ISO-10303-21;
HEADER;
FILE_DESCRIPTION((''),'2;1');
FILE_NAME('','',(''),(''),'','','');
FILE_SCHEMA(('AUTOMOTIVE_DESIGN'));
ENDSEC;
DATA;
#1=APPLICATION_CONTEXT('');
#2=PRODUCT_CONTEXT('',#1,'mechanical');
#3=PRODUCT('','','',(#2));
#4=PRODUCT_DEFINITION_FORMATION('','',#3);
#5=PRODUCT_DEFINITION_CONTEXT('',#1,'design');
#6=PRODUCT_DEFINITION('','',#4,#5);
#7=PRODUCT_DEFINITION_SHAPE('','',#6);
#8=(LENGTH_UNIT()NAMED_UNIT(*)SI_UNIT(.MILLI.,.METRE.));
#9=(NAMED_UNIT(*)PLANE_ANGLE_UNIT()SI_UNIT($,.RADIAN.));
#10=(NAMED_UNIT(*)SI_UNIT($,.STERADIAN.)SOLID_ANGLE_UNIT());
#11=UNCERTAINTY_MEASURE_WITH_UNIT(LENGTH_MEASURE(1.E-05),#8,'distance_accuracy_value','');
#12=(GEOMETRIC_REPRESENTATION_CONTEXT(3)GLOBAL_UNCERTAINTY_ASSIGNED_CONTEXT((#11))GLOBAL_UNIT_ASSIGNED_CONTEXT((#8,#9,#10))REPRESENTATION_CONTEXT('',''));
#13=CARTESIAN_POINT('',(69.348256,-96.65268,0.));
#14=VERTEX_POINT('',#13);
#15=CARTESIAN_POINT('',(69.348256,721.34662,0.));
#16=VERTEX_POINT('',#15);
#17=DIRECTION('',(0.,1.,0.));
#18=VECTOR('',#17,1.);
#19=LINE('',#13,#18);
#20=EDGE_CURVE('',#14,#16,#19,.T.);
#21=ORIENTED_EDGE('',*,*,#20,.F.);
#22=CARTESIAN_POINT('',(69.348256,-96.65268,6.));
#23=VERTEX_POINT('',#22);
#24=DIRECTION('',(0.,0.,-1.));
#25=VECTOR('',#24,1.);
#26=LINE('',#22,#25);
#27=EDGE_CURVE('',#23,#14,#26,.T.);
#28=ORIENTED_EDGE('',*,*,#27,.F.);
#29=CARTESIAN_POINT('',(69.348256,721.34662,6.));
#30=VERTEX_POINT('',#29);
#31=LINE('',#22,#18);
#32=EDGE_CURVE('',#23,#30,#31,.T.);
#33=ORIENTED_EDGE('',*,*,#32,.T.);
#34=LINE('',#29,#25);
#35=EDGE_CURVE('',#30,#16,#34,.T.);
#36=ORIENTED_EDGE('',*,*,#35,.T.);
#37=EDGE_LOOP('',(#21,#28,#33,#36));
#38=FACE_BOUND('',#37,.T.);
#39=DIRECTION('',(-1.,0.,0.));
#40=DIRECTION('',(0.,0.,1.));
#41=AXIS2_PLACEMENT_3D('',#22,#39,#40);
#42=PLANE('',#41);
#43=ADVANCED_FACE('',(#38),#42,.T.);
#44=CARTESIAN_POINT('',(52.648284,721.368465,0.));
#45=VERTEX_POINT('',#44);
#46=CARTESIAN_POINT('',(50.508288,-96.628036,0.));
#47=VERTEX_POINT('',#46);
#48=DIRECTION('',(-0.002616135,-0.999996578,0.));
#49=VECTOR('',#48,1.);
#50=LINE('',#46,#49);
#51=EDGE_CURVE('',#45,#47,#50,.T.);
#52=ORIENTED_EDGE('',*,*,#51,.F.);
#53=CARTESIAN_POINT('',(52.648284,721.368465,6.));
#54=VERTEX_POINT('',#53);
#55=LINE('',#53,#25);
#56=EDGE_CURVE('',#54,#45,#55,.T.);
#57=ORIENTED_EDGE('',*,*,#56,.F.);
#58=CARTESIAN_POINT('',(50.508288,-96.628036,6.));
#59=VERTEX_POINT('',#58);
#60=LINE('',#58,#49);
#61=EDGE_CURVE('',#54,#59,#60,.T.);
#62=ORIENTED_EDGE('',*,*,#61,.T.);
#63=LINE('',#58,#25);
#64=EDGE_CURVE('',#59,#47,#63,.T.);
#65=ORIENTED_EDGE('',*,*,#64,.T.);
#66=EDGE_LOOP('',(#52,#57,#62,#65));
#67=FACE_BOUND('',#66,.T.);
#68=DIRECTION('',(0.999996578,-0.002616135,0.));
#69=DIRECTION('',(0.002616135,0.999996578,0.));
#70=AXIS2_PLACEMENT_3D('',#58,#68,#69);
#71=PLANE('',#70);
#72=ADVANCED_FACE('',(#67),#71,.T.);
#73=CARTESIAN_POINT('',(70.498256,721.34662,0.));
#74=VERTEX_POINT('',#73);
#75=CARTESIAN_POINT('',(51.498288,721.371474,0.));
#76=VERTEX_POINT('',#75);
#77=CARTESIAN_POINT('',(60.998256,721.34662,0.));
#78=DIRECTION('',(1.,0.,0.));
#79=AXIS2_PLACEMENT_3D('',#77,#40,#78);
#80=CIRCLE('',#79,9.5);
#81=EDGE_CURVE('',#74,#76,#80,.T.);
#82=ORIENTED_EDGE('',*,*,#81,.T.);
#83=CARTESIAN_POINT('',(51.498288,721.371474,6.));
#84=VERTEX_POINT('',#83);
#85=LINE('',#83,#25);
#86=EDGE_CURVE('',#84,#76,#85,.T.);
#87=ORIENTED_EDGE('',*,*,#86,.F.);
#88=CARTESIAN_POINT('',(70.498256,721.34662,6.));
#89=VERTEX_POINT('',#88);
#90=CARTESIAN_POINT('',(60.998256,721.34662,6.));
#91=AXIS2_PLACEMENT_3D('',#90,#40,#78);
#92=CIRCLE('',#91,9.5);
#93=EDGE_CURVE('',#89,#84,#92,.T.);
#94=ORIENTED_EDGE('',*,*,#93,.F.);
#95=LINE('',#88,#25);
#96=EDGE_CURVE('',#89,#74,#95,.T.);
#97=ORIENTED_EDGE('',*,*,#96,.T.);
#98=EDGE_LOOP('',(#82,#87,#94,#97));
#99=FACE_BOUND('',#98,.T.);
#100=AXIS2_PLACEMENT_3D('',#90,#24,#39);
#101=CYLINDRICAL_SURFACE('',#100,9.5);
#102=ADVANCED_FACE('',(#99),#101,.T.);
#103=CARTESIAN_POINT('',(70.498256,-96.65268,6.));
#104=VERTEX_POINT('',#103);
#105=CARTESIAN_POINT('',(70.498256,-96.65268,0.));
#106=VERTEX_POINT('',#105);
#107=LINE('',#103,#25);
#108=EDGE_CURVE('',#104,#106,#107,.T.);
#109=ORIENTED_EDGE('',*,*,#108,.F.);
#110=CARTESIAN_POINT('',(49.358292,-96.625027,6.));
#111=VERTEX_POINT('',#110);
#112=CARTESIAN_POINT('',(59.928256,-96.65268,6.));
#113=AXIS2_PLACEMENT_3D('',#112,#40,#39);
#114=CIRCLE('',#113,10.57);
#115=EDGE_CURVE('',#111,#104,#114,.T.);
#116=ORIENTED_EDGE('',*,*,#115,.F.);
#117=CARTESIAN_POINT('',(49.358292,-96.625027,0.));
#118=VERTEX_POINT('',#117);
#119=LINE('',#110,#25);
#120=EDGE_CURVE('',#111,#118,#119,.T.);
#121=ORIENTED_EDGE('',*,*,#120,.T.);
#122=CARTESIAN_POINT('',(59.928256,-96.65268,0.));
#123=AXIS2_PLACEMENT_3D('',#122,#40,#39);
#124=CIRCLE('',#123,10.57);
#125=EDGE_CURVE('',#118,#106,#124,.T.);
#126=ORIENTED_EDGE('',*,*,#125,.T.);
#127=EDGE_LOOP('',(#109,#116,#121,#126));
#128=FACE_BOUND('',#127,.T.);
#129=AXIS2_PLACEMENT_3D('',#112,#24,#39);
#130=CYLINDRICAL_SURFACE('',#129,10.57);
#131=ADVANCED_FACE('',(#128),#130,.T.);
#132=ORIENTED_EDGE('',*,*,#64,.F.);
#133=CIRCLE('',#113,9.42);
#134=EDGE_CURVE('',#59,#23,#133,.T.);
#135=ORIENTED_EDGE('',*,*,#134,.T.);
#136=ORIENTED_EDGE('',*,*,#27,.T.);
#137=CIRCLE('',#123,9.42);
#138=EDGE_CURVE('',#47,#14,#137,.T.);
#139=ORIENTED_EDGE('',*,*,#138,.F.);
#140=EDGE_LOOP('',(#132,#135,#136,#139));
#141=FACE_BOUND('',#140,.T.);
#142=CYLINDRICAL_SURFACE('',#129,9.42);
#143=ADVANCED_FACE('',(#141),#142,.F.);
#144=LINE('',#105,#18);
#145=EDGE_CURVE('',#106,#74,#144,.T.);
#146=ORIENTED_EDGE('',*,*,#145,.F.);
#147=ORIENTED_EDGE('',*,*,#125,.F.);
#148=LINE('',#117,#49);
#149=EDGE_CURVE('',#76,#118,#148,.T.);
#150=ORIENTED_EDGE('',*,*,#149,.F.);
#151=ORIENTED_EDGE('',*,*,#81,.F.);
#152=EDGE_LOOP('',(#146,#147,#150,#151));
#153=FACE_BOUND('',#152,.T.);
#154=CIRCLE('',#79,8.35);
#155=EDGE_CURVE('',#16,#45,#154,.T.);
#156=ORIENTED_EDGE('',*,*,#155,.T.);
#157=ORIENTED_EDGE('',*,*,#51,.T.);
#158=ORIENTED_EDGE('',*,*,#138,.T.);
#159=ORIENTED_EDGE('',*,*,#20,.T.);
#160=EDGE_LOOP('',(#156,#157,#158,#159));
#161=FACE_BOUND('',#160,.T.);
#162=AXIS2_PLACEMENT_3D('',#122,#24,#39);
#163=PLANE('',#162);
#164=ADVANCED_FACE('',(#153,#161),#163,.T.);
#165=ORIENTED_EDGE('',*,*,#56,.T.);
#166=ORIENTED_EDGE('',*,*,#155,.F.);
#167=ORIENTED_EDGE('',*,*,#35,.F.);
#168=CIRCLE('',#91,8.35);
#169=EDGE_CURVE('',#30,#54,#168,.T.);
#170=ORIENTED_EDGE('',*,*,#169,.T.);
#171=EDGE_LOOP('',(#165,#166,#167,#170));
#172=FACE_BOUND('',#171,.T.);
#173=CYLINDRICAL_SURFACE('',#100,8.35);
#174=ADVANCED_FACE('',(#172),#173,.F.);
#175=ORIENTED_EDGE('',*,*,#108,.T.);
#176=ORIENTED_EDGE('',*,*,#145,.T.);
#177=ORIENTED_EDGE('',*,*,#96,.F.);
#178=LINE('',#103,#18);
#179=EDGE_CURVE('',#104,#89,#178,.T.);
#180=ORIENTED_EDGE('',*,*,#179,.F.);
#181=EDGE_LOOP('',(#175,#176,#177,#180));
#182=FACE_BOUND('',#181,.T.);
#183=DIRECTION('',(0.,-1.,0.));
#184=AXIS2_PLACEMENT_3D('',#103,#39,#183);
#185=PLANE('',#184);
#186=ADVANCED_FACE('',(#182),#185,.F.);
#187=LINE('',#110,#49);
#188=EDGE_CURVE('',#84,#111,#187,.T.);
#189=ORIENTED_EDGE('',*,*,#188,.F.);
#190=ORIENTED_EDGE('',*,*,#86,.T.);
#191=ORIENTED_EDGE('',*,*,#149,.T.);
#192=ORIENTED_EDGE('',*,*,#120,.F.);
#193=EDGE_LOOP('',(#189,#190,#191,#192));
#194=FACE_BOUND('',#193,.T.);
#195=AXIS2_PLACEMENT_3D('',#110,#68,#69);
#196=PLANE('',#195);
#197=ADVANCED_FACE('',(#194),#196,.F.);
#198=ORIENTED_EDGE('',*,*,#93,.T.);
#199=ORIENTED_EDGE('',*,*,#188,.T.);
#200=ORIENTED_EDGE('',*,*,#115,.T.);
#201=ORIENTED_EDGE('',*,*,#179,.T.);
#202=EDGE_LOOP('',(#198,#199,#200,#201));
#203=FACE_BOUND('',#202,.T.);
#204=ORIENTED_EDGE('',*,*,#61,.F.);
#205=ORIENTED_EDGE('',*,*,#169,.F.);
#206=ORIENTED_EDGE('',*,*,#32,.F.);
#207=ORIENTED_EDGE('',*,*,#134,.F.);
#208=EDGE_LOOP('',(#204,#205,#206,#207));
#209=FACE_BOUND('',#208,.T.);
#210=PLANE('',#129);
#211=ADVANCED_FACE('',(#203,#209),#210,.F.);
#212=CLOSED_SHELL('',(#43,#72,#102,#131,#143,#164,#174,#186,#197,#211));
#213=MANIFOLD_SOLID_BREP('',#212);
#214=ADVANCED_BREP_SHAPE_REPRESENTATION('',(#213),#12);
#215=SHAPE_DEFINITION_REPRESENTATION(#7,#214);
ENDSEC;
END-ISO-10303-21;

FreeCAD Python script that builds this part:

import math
import FreeCAD as App
import Part
import Sketcher
from FreeCAD import Vector

doc = App.newDocument("Part")
body = doc.addObject("PartDesign::Body", "Body")

# Sketch on XY plane
sketch1 = body.newObject("Sketcher::SketchObject", "Sketch")
sketch1.AttachmentSupport = (doc.getObject("XY_Plane"), [""])
sketch1.MapMode = "FlatFace"
sketch1.addGeometry([
    Part.LineSegment(Vector(70, -97, 0), Vector(70, 721, 0)),  # 0
    Part.ArcOfCircle(Part.Circle(Vector(61, 721, 0), Vector(0, 0, 1), 10), math.radians(0), math.radians(180)),  # 1
    Part.LineSegment(Vector(51, 721, 0), Vector(49, -97, 0)),  # 2
    Part.ArcOfCircle(Part.Circle(Vector(60, -97, 0), Vector(0, 0, 1), 11), math.radians(180), math.radians(360)),  # 3
    Part.LineSegment(Vector(69, 721, 0), Vector(69, -97, 0)),  # 4
    Part.ArcOfCircle(Part.Circle(Vector(60, -97, 0), Vector(0, 0, 1), 9), math.radians(180), math.radians(360)),  # 5
    Part.LineSegment(Vector(51, -97, 0), Vector(53, 721, 0)),  # 6
    Part.ArcOfCircle(Part.Circle(Vector(61, 721, 0), Vector(0, 0, 1), 8), math.radians(0), math.radians(180)),  # 7
], False)
sketch1.addConstraint([
    Sketcher.Constraint("Tangent", 0, 2, 1, 1),
    Sketcher.Constraint("Tangent", 1, 2, 2, 1),
    Sketcher.Constraint("Tangent", 2, 2, 3, 1),
    Sketcher.Constraint("Tangent", 3, 2, 0, 1),
    Sketcher.Constraint("Tangent", 4, 2, 5, 2),
    Sketcher.Constraint("Tangent", 5, 1, 6, 1),
    Sketcher.Constraint("Tangent", 6, 2, 7, 2),
    Sketcher.Constraint("Tangent", 7, 1, 4, 1),
    Sketcher.Constraint("Vertical", 0),
    Sketcher.Constraint("Vertical", 4),
    Sketcher.Constraint("Coincident", 5, 3, 3, 3),
    Sketcher.Constraint("Coincident", 7, 3, 1, 3),
    Sketcher.Constraint("Radius", 1, 9.5),
    Sketcher.Constraint("Radius", 3, 10.57),
    Sketcher.Constraint("Radius", 5, 9.42),
    Sketcher.Constraint("DistanceY", 0, 1, 0, 2, 817.9993),
    Sketcher.Constraint("DistanceY", -1, 1, 1, 3, 721.34662),
    Sketcher.Constraint("DistanceX", -1, 1, 1, 2, 51.498288),
])
pad1 = body.newObject("PartDesign::Pad", "Pad")
pad1.Profile = sketch1
pad1.Length = 6

doc.recompute()
